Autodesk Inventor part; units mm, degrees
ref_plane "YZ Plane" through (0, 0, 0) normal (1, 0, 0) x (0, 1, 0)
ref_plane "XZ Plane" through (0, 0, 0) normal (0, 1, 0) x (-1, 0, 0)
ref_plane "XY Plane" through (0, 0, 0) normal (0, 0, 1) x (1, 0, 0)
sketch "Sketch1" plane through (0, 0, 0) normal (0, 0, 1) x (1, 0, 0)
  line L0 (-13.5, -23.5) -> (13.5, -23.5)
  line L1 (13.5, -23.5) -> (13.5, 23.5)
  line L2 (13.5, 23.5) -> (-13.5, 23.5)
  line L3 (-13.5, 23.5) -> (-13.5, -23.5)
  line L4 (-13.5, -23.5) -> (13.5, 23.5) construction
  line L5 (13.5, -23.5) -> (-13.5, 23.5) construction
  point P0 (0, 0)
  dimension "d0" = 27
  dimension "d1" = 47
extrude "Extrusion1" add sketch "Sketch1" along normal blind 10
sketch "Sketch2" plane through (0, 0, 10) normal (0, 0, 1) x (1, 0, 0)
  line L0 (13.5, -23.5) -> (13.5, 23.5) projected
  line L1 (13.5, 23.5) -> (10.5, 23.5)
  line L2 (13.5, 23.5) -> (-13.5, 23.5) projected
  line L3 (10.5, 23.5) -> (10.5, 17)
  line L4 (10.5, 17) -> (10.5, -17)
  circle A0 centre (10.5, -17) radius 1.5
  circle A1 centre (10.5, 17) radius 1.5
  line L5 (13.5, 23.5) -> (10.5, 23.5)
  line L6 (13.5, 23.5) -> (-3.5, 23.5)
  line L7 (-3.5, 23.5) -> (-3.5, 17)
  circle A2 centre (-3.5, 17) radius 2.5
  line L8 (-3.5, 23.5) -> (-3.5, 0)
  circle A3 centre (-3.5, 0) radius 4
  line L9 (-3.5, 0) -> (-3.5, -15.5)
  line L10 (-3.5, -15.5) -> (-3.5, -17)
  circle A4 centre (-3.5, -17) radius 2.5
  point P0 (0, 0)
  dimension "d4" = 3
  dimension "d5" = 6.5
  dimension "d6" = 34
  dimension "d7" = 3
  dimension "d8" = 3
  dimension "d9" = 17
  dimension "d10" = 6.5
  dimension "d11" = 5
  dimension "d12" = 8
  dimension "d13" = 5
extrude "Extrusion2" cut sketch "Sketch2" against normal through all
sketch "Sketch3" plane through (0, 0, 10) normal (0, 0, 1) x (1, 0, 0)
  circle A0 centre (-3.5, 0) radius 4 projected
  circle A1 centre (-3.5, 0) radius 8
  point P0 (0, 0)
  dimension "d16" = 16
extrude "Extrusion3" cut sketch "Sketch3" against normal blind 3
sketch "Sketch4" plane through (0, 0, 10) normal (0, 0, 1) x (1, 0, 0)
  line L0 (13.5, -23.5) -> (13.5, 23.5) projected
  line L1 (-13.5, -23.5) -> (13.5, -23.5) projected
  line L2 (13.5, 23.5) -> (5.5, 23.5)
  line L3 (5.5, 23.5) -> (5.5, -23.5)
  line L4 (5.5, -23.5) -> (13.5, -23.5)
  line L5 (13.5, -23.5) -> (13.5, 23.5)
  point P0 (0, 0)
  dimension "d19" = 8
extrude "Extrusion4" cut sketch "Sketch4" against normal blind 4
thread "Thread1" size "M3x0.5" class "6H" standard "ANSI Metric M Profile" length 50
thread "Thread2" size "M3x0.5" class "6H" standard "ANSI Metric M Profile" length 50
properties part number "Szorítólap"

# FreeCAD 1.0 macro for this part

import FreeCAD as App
import Part
import Sketcher

V = App.Vector


def add_polygon(sketch, points):
    """Adds a closed chain of lines whose ends are joined by coincident constraints."""
    first, n = sketch.GeometryCount, len(points)
    for a, b in zip(points, points[1:] + points[:1]):
        sketch.addGeometry(Part.LineSegment(App.Vector(*a, 0), App.Vector(*b, 0)), False)
    for i in range(n):
        sketch.addConstraint(Sketcher.Constraint("Coincident", first + i, 2, first + (i + 1) % n, 1))

doc = App.newDocument("Part")
body = doc.addObject("PartDesign::Body", "Body")

# Sketch on XY plane
sketch1 = body.newObject("Sketcher::SketchObject", "Sketch")
sketch1.AttachmentSupport = (doc.getObject("XY_Plane"), [""])
sketch1.MapMode = "FlatFace"
add_polygon(sketch1, [(-14, 24), (-14, -24), (14, -24), (14, 24)])  # lines 0-3
sketch1.addConstraint([
    Sketcher.Constraint("Vertical", 0),
    Sketcher.Constraint("Horizontal", 1),
    Sketcher.Constraint("Vertical", 2),
    Sketcher.Constraint("Horizontal", 3),
    Sketcher.Constraint("Symmetric", 0, 2, 2, 2, -1, 1),
    Sketcher.Constraint("DistanceX", 1, 1, 1, 2, 27.0),
    Sketcher.Constraint("DistanceY", 0, 2, 0, 1, 47.0),
])
pad1 = body.newObject("PartDesign::Pad", "Pad")
pad1.Profile = sketch1
pad1.Length = 10

# Sketch on XY plane
sketch2 = body.newObject("Sketcher::SketchObject", "Sketch001")
sketch2.AttachmentSupport = (doc.getObject("XY_Plane"), [""])
sketch2.MapMode = "FlatFace"
sketch2.AttachmentOffset = App.Placement(V(0, 0, 10), App.Rotation())
sketch2.addGeometry([
    Part.Circle(V(-3.5, -17, 0), V(0, 0, 1), 2.5),  # 0
    Part.Circle(V(-3.5, 0, 0), V(0, 0, 1), 4),  # 1
    Part.Circle(V(-3.5, 17, 0), V(0, 0, 1), 2.5),  # 2
    Part.Circle(V(10.5, -17, 0), V(0, 0, 1), 1.5),  # 3
    Part.Circle(V(10.5, 17, 0), V(0, 0, 1), 1.5),  # 4
], False)
sketch2.addConstraint([
    Sketcher.Constraint("Equal", 0, 2),
    Sketcher.Constraint("Equal", 3, 4),
    Sketcher.Constraint("Symmetric", 0, 3, 2, 3, -1),
    Sketcher.Constraint("Symmetric", 3, 3, 4, 3, -1),
    Sketcher.Constraint("PointOnObject", 1, 3, -1),
    Sketcher.Constraint("Horizontal", 0, 3, 3, 3),
    Sketcher.Constraint("Vertical", 0, 3, 1, 3),
    Sketcher.Constraint("Diameter", 0, 5.0),
    Sketcher.Constraint("Diameter", 1, 8.0),
    Sketcher.Constraint("Diameter", 3, 3.0),
    Sketcher.Constraint("DistanceY", 0, 3, -1, 1, 17.0),
    Sketcher.Constraint("DistanceX", 0, 3, 3, 3, 14.0),
    Sketcher.Constraint("DistanceX", 0, 3, -1, 1, 3.5),
])
pocket1 = body.newObject("PartDesign::Pocket", "Pocket")
pocket1.Profile = sketch2
pocket1.Type = "ThroughAll"

# Sketch on XY plane
sketch3 = body.newObject("Sketcher::SketchObject", "Sketch002")
sketch3.AttachmentSupport = (doc.getObject("XY_Plane"), [""])
sketch3.MapMode = "FlatFace"
sketch3.AttachmentOffset = App.Placement(V(0, 0, 10), App.Rotation())
sketch3.addGeometry([
    Part.Circle(V(-3.5, 0, 0), V(0, 0, 1), 8),
    Part.Circle(V(-3.5, 0, 0), V(0, 0, 1), 4),
], False)
sketch3.addConstraint([
    Sketcher.Constraint("Coincident", 1, 3, 0, 3),
    Sketcher.Constraint("PointOnObject", 0, 3, -1),
    Sketcher.Constraint("Diameter", 0, 16.0),
    Sketcher.Constraint("Diameter", 1, 8.0),
    Sketcher.Constraint("DistanceX", 0, 3, -1, 1, 3.5),
])
pocket2 = body.newObject("PartDesign::Pocket", "Pocket001")
pocket2.Profile = sketch3
pocket2.Length = 3

# Sketch on XY plane
sketch4 = body.newObject("Sketcher::SketchObject", "Sketch003")
sketch4.AttachmentSupport = (doc.getObject("XY_Plane"), [""])
sketch4.MapMode = "FlatFace"
sketch4.AttachmentOffset = App.Placement(V(0, 0, 10), App.Rotation())
add_polygon(sketch4, [(6, -24), (14, -24), (14, 24), (6, 24)])  # lines 0-3
sketch4.addConstraint([
    Sketcher.Constraint("Horizontal", 0),
    Sketcher.Constraint("Vertical", 1),
    Sketcher.Constraint("Horizontal", 2),
    Sketcher.Constraint("Vertical", 3),
    Sketcher.Constraint("DistanceX", 0, 1, 0, 2, 8.0),
    Sketcher.Constraint("DistanceY", 1, 1, 1, 2, 47.0),
    Sketcher.Constraint("DistanceX", -1, 1, 0, 2, 13.5),
    Sketcher.Constraint("DistanceY", 0, 2, -1, 1, 23.5),
])
pocket3 = body.newObject("PartDesign::Pocket", "Pocket002")
pocket3.Profile = sketch4
pocket3.Length = 4

doc.recompute()
